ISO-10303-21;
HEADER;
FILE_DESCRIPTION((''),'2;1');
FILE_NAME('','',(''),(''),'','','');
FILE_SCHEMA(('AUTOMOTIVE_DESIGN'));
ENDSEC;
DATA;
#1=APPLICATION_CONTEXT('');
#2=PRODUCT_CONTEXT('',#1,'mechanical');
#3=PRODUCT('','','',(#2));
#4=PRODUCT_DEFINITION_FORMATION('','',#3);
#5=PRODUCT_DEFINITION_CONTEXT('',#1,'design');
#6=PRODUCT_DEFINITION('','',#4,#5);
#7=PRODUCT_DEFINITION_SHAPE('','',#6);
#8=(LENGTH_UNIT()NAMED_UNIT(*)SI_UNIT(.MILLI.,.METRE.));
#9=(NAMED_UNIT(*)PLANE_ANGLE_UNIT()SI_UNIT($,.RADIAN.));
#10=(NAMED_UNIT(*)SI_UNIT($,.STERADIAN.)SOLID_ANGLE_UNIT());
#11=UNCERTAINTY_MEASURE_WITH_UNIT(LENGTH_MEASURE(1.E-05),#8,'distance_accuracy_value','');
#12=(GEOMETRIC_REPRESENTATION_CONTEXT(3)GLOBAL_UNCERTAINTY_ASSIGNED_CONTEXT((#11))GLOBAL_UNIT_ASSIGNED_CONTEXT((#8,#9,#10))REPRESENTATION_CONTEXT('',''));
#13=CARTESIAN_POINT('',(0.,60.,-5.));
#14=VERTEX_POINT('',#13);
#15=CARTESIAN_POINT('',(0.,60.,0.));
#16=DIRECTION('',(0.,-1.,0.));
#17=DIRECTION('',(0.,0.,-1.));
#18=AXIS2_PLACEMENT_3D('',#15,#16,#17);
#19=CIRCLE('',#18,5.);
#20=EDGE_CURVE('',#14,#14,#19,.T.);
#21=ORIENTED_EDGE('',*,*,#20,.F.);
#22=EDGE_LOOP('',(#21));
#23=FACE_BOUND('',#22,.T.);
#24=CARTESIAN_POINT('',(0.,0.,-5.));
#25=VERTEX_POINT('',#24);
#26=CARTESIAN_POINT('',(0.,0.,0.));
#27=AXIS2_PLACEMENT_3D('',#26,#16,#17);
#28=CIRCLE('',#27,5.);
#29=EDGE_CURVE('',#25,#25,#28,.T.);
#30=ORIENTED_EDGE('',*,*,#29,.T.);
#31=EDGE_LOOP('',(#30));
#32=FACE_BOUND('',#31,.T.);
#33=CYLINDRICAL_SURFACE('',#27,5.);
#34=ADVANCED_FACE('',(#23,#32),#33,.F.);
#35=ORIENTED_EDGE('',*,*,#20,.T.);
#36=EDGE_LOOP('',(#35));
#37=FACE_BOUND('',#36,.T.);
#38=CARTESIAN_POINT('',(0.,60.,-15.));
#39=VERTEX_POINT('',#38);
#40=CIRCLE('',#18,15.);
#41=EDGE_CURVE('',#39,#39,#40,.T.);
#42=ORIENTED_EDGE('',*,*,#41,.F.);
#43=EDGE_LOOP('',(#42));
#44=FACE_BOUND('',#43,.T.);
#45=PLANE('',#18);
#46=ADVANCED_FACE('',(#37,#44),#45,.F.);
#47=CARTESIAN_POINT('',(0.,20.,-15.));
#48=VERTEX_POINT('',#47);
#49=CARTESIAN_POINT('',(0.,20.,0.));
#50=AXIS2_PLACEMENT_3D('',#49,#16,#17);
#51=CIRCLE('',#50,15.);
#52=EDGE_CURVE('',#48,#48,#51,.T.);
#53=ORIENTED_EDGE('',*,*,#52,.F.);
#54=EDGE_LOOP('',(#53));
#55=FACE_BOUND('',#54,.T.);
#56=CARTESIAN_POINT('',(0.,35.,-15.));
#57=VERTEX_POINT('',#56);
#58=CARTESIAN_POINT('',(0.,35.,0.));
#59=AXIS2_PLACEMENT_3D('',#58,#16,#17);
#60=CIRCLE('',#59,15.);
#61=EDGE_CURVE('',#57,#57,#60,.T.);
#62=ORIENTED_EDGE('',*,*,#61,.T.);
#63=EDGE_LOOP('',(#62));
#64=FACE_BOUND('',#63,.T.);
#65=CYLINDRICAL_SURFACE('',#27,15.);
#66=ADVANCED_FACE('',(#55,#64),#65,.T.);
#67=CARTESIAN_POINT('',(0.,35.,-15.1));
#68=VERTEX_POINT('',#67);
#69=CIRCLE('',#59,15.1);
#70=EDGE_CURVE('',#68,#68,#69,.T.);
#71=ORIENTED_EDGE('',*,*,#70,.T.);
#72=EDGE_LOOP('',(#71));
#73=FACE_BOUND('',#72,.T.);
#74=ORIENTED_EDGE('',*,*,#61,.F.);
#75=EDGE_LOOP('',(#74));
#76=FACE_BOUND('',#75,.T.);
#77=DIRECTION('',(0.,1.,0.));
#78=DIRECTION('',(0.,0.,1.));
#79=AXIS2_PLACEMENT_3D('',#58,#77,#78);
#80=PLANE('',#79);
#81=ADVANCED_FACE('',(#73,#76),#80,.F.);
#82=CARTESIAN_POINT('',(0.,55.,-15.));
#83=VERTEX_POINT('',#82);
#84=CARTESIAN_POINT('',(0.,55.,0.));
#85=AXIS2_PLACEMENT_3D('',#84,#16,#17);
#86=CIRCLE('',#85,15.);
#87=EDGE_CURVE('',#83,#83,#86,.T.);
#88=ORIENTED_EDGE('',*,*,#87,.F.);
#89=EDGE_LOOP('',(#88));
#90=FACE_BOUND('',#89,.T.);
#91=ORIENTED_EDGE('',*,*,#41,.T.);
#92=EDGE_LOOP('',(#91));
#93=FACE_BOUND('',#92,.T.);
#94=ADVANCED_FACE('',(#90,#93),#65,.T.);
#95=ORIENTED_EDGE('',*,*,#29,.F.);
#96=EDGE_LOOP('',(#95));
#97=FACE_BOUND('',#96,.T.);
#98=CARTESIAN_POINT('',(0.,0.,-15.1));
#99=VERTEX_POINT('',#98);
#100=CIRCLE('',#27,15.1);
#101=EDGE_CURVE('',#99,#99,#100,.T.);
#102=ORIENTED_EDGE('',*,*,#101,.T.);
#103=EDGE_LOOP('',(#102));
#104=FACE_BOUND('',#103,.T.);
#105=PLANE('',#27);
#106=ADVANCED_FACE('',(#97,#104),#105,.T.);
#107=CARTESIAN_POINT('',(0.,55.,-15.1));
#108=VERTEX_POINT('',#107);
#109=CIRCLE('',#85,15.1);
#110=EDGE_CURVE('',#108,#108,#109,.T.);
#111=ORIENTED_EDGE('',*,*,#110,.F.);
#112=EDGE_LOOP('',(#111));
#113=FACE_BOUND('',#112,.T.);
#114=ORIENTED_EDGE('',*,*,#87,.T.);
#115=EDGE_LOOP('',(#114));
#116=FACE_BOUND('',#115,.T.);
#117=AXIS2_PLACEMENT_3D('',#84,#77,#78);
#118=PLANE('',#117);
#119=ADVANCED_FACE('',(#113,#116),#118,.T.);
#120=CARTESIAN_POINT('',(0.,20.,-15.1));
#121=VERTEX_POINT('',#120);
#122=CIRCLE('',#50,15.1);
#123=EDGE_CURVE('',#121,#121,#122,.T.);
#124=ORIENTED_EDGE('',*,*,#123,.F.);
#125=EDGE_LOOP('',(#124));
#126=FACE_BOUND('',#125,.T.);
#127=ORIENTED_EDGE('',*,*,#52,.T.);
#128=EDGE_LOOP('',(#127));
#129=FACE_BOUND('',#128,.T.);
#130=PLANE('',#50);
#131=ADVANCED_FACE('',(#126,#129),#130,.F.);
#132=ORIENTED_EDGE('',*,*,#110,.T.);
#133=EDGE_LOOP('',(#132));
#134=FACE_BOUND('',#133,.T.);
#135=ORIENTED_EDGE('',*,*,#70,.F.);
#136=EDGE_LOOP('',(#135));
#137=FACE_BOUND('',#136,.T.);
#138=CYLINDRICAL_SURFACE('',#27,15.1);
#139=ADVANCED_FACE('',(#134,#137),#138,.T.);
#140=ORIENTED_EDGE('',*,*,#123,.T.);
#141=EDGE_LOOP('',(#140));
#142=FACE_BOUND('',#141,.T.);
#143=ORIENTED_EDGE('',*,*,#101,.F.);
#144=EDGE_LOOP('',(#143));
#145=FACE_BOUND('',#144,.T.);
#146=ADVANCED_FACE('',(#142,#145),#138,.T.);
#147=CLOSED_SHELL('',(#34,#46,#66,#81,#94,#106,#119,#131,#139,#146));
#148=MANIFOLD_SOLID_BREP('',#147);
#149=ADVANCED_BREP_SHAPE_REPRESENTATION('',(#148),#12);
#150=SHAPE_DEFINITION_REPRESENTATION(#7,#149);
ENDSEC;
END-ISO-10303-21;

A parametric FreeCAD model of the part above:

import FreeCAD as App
import Part
import Sketcher


def add_polygon(sketch, points):
    """Adds a closed chain of lines whose ends are joined by coincident constraints."""
    first, n = sketch.GeometryCount, len(points)
    for a, b in zip(points, points[1:] + points[:1]):
        sketch.addGeometry(Part.LineSegment(App.Vector(*a, 0), App.Vector(*b, 0)), False)
    for i in range(n):
        sketch.addConstraint(Sketcher.Constraint("Coincident", first + i, 2, first + (i + 1) % n, 1))

doc = App.newDocument("Part")
body = doc.addObject("PartDesign::Body", "Body")

sketch1 = body.newObject("Sketcher::SketchObject", "Sketch")
sketch1.AttachmentSupport = (doc.getObject("XY_Plane"), [""])
sketch1.MapMode = "FlatFace"
add_polygon(sketch1, [(5, 60), (5, 0), (15.1, 0), (15.1, 20), (15, 20), (15, 35), (15.1, 35), (15.1, 55), (15, 55), (15, 60)])
sketch1.addConstraint([
    Sketcher.Constraint("Vertical", 0),
    Sketcher.Constraint("Horizontal", 1),
    Sketcher.Constraint("Vertical", 2),
    Sketcher.Constraint("Horizontal", 3),
    Sketcher.Constraint("Vertical", 4),
    Sketcher.Constraint("Horizontal", 5),
    Sketcher.Constraint("Vertical", 6),
    Sketcher.Constraint("Horizontal", 7),
    Sketcher.Constraint("Vertical", 8),
    Sketcher.Constraint("Horizontal", 9),
    Sketcher.Constraint("PointOnObject", 0, 2, -1),
    Sketcher.Constraint("Vertical", 2, 2, 5, 2),
    Sketcher.Constraint("Vertical", 4, 2, 7, 2),
    Sketcher.Constraint("Equal", 2, 6),
    Sketcher.Constraint("DistanceX", 9, 2, 9, 1, 10.0),
    Sketcher.Constraint("DistanceY", 0, 2, 0, 1, 60.0),
    Sketcher.Constraint("DistanceY", 2, 1, 2, 2, 20.0),
    Sketcher.Constraint("DistanceY", 4, 1, 4, 2, 15.0),
    Sketcher.Constraint("DistanceX", 1, 1, 1, 2, 10.1),
    Sketcher.Constraint("DistanceX", -1, 1, 0, 2, 5.0),
])
revolution = body.newObject("PartDesign::Revolution", "Revolution")
revolution.Profile = sketch1
revolution.ReferenceAxis = (sketch1, ["V_Axis"])
revolution.Angle = 360

doc.recompute()
